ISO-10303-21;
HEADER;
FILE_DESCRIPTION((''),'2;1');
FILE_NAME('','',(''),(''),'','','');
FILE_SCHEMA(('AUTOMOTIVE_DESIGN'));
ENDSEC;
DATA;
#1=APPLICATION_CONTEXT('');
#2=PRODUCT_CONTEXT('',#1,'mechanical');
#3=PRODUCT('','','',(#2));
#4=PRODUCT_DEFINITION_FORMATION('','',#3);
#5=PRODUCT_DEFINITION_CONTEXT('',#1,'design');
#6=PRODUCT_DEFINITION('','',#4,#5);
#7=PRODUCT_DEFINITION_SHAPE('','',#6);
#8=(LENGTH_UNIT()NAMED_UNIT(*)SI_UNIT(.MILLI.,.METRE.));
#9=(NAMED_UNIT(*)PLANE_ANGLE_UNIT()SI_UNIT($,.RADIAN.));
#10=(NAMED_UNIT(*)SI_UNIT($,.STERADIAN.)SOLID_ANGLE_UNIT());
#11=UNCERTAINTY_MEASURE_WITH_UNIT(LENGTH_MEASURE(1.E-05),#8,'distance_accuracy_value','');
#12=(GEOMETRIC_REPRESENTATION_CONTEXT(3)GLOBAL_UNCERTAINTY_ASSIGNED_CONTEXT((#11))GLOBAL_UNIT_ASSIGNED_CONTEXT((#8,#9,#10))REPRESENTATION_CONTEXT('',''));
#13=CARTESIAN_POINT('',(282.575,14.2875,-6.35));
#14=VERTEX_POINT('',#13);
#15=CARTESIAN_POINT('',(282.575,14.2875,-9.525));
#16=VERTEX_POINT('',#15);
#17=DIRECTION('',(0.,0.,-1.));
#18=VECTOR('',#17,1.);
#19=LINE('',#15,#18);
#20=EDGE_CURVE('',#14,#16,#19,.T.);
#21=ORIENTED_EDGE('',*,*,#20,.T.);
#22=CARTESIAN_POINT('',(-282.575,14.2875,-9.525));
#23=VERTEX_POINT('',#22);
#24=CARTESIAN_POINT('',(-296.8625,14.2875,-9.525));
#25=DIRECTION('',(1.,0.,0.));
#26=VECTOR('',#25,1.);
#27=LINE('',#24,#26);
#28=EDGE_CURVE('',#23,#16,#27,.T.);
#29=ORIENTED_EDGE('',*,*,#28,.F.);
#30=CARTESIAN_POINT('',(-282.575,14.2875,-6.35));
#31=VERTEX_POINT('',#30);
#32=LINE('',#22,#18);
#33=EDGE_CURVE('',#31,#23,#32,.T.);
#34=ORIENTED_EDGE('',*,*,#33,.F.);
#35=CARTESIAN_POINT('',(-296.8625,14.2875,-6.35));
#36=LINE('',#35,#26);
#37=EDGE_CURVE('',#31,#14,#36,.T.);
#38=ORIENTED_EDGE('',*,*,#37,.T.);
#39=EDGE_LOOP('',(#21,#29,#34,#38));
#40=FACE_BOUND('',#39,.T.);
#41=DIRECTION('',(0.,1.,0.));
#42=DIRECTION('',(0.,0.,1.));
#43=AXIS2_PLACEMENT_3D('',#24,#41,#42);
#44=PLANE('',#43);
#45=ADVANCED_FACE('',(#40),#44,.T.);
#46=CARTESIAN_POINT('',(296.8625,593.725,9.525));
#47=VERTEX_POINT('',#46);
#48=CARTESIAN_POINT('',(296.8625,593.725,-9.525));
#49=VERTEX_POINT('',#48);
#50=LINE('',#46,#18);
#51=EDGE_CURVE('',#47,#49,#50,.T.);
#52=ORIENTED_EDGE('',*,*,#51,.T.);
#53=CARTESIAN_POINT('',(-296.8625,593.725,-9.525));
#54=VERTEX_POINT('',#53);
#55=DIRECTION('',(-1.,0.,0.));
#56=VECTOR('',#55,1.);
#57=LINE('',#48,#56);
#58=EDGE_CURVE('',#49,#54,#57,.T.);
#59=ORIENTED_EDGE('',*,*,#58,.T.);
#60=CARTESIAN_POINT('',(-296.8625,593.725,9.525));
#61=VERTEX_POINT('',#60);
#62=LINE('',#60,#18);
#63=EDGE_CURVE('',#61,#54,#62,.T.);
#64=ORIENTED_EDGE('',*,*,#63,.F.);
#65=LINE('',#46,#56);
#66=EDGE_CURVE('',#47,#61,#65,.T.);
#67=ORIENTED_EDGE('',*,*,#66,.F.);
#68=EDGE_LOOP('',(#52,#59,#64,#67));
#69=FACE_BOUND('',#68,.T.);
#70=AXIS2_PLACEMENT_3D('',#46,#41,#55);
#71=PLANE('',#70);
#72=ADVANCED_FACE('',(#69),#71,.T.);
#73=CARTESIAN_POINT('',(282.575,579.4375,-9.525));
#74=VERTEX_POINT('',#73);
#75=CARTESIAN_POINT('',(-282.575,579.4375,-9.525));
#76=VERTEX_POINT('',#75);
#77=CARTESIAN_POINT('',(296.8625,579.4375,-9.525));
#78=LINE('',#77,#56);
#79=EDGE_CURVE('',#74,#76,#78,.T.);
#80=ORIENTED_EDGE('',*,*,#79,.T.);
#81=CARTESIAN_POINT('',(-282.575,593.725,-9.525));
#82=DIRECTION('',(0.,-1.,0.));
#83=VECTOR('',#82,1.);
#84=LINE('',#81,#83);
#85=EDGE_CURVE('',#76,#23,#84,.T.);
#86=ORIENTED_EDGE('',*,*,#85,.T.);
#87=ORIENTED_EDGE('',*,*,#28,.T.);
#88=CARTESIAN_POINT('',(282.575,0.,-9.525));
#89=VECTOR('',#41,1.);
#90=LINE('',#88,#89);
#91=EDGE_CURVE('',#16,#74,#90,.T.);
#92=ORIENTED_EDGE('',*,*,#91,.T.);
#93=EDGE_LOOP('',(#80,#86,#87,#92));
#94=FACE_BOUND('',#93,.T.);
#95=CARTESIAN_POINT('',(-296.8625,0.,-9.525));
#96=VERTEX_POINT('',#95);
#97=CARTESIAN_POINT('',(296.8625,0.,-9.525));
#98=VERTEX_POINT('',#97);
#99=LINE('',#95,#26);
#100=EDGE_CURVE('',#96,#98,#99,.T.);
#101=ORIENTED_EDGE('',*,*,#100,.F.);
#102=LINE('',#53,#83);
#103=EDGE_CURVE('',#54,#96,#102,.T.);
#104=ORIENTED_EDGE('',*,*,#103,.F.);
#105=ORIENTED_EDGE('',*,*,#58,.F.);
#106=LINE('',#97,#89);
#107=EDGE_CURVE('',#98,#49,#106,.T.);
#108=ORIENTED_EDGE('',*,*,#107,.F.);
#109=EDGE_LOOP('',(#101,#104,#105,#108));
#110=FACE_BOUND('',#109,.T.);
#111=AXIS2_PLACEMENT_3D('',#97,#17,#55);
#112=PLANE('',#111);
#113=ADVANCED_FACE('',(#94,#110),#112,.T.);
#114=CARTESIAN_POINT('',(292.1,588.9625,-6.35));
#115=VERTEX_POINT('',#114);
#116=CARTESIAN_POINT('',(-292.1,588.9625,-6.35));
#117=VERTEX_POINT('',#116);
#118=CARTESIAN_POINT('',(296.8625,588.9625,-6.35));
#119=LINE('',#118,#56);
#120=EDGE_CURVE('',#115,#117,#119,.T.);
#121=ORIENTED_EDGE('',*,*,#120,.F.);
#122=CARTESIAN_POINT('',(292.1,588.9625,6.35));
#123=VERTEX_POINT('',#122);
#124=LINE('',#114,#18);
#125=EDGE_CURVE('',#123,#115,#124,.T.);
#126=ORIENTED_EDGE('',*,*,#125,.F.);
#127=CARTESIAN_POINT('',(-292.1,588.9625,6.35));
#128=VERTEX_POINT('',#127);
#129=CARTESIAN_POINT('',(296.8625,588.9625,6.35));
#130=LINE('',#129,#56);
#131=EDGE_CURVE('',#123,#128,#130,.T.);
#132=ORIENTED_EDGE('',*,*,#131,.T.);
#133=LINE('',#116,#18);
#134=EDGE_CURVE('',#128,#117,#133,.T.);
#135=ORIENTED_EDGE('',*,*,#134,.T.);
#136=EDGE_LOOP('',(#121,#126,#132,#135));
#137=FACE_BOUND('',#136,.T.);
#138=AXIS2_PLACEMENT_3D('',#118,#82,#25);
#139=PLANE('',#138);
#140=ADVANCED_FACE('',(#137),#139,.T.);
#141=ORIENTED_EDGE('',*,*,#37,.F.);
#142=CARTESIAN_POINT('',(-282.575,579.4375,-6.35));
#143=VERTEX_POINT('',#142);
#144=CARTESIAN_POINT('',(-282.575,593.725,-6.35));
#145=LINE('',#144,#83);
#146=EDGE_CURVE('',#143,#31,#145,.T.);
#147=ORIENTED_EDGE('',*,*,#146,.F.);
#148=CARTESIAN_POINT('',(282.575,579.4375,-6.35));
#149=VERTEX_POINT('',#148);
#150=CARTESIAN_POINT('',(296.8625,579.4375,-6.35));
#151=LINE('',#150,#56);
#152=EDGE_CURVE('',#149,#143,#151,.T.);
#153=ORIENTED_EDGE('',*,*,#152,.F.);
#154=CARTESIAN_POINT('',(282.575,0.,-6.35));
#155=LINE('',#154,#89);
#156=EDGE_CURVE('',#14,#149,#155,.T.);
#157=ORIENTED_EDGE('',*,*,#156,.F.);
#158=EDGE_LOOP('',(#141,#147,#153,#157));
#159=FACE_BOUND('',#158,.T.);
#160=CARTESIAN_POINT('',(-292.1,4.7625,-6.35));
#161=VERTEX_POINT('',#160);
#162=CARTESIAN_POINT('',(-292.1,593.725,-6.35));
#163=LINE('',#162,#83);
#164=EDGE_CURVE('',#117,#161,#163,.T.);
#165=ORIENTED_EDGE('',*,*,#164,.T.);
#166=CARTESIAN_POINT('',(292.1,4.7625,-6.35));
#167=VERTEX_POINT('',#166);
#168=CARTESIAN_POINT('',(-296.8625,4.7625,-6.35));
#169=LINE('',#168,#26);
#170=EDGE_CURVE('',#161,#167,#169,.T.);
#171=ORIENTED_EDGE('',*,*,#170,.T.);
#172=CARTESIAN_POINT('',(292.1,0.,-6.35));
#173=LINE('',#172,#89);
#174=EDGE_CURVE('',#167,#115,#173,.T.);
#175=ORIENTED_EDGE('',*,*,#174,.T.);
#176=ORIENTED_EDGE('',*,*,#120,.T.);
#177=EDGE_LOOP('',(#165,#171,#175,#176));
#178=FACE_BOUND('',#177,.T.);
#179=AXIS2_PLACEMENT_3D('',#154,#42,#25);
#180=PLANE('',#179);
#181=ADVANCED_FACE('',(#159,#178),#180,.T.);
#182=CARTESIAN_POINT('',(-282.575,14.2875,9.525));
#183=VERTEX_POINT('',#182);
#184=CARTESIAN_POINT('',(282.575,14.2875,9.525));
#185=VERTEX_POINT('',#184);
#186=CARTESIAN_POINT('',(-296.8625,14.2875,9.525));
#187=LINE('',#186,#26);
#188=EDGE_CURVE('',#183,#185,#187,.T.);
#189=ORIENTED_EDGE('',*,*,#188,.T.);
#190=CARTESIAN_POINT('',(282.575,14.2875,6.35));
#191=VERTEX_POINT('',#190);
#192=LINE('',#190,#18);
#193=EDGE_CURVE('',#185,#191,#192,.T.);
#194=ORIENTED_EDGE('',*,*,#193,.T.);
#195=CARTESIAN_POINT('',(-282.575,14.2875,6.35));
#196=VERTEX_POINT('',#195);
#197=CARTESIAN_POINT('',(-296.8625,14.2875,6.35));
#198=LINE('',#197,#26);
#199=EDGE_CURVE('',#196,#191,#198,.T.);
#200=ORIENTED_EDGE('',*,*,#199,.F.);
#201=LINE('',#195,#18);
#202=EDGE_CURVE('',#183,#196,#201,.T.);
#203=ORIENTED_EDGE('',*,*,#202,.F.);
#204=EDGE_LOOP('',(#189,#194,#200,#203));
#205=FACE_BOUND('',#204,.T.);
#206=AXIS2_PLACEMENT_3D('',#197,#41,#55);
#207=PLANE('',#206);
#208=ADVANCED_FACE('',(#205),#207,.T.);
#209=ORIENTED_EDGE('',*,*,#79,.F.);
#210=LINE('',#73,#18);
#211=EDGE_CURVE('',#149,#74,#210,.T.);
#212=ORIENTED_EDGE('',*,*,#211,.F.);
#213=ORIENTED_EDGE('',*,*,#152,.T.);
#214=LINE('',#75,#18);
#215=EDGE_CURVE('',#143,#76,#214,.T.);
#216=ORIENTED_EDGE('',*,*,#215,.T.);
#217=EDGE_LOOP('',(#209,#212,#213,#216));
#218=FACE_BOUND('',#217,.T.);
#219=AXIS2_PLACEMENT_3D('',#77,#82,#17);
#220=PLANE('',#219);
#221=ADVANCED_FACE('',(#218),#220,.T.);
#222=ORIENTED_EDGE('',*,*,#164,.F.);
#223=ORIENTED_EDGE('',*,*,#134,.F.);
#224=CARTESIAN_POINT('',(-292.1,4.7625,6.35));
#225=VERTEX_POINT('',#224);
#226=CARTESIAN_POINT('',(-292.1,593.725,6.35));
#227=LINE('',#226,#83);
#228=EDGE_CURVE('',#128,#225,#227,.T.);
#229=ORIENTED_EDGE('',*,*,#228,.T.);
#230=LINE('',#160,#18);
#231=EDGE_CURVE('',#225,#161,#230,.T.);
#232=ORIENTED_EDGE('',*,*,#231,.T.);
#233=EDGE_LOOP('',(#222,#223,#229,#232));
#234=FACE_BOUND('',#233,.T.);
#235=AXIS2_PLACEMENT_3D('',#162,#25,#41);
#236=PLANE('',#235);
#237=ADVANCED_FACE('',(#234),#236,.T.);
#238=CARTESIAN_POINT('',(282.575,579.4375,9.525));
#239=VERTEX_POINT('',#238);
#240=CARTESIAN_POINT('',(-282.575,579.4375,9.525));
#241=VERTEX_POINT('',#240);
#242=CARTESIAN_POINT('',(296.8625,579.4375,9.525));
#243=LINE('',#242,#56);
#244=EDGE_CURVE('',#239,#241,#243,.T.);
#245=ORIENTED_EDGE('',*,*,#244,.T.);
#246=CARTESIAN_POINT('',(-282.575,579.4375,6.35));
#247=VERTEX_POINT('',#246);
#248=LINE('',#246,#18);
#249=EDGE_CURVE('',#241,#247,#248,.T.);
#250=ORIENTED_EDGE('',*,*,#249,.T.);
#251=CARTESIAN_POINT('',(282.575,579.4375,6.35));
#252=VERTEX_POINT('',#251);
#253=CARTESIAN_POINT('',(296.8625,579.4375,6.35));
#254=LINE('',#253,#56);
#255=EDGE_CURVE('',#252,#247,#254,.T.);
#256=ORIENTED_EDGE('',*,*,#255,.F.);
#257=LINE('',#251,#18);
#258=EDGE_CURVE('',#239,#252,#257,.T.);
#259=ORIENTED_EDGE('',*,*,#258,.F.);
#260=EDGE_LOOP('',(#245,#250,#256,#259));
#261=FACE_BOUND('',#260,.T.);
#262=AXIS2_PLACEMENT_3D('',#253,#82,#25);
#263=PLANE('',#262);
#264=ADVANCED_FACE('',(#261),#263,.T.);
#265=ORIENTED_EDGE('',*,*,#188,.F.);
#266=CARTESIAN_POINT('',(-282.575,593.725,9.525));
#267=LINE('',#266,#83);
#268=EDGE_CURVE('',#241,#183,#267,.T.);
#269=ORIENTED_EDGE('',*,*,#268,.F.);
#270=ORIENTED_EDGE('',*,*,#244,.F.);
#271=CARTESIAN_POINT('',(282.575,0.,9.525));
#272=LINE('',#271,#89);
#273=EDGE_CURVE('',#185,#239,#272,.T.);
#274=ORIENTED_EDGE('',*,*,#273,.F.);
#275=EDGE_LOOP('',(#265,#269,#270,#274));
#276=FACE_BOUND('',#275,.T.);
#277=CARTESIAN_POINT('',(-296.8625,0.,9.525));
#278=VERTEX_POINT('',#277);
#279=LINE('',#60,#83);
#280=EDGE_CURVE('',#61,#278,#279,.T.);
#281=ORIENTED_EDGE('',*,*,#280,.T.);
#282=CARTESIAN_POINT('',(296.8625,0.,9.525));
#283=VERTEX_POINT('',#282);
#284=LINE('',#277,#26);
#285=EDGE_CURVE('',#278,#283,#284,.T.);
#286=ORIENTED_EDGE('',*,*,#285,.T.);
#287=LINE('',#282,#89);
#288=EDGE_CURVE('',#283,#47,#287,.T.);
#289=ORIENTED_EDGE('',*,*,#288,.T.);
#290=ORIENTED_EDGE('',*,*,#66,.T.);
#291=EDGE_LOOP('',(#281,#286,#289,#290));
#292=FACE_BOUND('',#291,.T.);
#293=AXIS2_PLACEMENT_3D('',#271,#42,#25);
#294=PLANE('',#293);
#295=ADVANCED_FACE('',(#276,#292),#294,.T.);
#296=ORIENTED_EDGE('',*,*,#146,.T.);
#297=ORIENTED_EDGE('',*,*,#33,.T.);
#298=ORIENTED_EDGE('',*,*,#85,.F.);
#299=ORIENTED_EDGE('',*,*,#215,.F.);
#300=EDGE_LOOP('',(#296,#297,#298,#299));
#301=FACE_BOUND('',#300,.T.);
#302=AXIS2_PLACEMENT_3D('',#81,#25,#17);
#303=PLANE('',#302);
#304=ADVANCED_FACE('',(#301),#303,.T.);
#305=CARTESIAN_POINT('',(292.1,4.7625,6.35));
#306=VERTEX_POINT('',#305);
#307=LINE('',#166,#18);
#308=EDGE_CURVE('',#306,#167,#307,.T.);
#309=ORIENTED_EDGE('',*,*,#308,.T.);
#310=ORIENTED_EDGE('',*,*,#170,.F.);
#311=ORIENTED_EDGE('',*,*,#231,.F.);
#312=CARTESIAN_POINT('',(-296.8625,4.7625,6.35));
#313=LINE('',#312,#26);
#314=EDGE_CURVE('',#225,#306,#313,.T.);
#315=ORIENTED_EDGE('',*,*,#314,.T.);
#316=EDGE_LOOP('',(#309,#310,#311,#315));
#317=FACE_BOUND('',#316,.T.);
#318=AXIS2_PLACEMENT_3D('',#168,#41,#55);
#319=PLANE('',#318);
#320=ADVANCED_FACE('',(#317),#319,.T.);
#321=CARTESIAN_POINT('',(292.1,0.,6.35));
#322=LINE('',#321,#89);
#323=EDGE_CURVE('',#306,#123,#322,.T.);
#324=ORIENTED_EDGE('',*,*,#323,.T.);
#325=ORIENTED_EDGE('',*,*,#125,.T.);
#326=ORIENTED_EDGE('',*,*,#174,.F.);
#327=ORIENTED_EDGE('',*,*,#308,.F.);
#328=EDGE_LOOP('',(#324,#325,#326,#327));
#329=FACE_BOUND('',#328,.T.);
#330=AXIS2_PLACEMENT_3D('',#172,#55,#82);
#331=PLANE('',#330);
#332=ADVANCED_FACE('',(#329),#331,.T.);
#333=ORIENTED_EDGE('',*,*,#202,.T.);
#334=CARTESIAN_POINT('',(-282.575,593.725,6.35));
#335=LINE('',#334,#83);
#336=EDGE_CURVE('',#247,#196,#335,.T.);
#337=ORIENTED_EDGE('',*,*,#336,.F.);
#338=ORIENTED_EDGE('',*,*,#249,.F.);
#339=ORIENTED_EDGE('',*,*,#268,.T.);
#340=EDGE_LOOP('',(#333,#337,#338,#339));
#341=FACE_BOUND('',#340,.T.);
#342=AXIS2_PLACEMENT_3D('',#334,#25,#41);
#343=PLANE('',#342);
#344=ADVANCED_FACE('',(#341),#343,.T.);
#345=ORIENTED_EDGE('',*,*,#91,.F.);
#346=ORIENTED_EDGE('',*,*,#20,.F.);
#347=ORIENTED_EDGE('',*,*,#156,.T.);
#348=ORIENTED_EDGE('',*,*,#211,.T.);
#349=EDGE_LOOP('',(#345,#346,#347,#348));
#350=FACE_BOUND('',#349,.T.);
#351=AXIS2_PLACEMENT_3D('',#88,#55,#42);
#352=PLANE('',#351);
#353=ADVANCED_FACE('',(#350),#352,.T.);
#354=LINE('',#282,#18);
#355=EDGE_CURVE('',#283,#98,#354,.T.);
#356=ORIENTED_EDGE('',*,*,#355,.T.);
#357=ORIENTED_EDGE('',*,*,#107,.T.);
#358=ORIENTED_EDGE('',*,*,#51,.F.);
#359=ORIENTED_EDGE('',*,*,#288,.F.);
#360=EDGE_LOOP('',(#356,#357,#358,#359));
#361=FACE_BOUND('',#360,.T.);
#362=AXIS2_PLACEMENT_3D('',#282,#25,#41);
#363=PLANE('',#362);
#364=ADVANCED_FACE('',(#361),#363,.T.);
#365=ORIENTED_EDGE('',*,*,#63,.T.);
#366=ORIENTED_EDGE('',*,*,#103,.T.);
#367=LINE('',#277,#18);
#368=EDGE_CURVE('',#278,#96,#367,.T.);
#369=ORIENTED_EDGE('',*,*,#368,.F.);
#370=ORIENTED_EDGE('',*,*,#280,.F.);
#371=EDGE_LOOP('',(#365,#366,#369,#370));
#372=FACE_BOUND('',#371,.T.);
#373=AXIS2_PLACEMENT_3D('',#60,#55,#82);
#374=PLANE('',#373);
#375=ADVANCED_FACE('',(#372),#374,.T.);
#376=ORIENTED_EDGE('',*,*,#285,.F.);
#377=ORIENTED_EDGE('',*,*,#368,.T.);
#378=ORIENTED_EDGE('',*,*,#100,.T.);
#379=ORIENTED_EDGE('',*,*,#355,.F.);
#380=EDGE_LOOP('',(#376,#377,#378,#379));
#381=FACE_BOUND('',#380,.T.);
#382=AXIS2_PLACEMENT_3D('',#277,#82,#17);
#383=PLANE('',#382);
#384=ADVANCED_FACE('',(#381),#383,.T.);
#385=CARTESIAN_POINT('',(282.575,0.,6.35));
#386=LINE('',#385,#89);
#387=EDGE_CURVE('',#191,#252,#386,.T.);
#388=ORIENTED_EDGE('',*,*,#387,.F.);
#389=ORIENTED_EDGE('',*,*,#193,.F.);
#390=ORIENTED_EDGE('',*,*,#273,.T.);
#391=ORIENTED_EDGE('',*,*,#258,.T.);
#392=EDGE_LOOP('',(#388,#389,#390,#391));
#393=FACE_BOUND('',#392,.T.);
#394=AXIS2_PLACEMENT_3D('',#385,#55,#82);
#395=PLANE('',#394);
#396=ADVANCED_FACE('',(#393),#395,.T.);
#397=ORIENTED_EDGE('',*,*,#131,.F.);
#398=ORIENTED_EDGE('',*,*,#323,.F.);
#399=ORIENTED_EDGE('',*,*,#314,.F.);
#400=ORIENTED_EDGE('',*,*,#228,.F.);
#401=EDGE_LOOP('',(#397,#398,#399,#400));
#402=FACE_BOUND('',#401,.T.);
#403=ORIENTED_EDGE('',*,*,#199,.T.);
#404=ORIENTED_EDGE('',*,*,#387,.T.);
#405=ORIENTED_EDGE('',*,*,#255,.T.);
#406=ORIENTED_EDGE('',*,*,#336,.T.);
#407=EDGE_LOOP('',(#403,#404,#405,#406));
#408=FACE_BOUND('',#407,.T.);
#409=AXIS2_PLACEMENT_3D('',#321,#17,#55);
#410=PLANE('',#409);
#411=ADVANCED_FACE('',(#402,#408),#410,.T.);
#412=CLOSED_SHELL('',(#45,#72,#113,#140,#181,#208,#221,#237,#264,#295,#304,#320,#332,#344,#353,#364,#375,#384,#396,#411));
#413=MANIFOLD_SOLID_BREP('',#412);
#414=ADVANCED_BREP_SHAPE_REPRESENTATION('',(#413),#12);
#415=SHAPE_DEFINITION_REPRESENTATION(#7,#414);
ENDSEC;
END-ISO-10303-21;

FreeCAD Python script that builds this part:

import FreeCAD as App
import Part
import Sketcher
Q = App.Units.Quantity


def add_polygon(sketch, points):
    """Adds a closed chain of lines whose ends are joined by coincident constraints."""
    first, n = sketch.GeometryCount, len(points)
    for a, b in zip(points, points[1:] + points[:1]):
        sketch.addGeometry(Part.LineSegment(App.Vector(*a, 0), App.Vector(*b, 0)), False)
    for i in range(n):
        sketch.addConstraint(Sketcher.Constraint("Coincident", first + i, 2, first + (i + 1) % n, 1))

doc = App.newDocument("Part")
body = doc.addObject("PartDesign::Body", "Body")

sketch1 = body.newObject("Sketcher::SketchObject", "Sketch")
sketch1.AttachmentSupport = (doc.getObject("YZ_Plane"), [""])
sketch1.MapMode = "FlatFace"
add_polygon(sketch1, [(14.2875, 9.525), (0, 9.525), (0, -9.525), (14.2875, -9.525), (14.2875, -6.35), (4.7625, -6.35), (4.7625, 6.35), (14.2875, 6.35)])
sketch1.addConstraint([
    Sketcher.Constraint("Horizontal", 0),
    Sketcher.Constraint("Vertical", 1),
    Sketcher.Constraint("Horizontal", 2),
    Sketcher.Constraint("Vertical", 3),
    Sketcher.Constraint("Horizontal", 4),
    Sketcher.Constraint("Vertical", 5),
    Sketcher.Constraint("Horizontal", 6),
    Sketcher.Constraint("Vertical", 7),
    Sketcher.Constraint("Symmetric", 0, 2, 1, 2, -1, 1),
    Sketcher.Constraint("Symmetric", 3, 2, 6, 2, -1),
    Sketcher.Constraint("DistanceY", 5, 1, 5, 2, Q("0.5 in")),
    Sketcher.Constraint("DistanceY", 1, 2, 1, 1, Q("0.75 in")),
    Sketcher.Constraint("DistanceX", 0, 2, 0, 1, Q("0.5625 in")),
    Sketcher.Constraint("DistanceX", 4, 2, 4, 1, Q("0.375 in")),
])

sketch2 = body.newObject("Sketcher::SketchObject", "Sketch001")
sketch2.AttachmentSupport = (doc.getObject("XY_Plane"), [""])
sketch2.MapMode = "FlatFace"
add_polygon(sketch2, [(-296.8625, 593.725), (296.8625, 593.725), (296.8625, 0), (-296.8625, 0)])
sketch2.addConstraint([
    Sketcher.Constraint("Horizontal", 0),
    Sketcher.Constraint("Vertical", 1),
    Sketcher.Constraint("Horizontal", 2),
    Sketcher.Constraint("Vertical", 3),
    Sketcher.Constraint("Symmetric", 1, 2, 2, 2, -1, 1),
    Sketcher.Constraint("Equal", 2, 1),
    Sketcher.Constraint("DistanceX", 0, 1, 0, 2, Q("23.375 in")),
])
doc.recompute()

additivepipe = body.newObject("PartDesign::AdditivePipe", "AdditivePipe")
additivepipe.Profile = sketch1
additivepipe.Spine = (sketch2, ["Edge1", "Edge2", "Edge3", "Edge4"])
additivepipe.Transition = "Right corner"

doc.recompute()
